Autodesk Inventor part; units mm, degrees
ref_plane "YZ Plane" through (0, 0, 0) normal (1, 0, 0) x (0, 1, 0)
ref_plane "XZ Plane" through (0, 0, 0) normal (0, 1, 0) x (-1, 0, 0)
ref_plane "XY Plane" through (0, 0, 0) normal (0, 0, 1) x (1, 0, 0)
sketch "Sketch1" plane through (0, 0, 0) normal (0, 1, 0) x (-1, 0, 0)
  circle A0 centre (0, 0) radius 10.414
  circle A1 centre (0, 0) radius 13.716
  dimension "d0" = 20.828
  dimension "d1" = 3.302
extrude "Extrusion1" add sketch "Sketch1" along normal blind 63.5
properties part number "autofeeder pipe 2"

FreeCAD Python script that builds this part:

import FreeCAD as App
import Part
import Sketcher

V = App.Vector
Q = App.Units.Quantity

doc = App.newDocument("Part")
body = doc.addObject("PartDesign::Body", "Body")

sketch1 = body.newObject("Sketcher::SketchObject", "Sketch")
sketch1.AttachmentSupport = (doc.getObject("XZ_Plane"), [""])
sketch1.MapMode = "FlatFace"
sketch1.addGeometry([
    Part.Circle(V(0, 0, 0), V(0, 0, 1), 13.716),
    Part.Circle(V(0, 0, 0), V(0, 0, 1), 10.414),
], False)
sketch1.addConstraint([
    Sketcher.Constraint("Coincident", 0, 3, -1, 1),
    Sketcher.Constraint("Coincident", 1, 3, -1, 1),
    Sketcher.Constraint("Diameter", 1, Q("0.82 in")),
    Sketcher.Constraint("Diameter", 0, Q("1.08 in")),
])
pad1 = body.newObject("PartDesign::Pad", "Pad")
pad1.Profile = sketch1
pad1.Length = Q("2.5 in")
pad1.Reversed = True

doc.recompute()
